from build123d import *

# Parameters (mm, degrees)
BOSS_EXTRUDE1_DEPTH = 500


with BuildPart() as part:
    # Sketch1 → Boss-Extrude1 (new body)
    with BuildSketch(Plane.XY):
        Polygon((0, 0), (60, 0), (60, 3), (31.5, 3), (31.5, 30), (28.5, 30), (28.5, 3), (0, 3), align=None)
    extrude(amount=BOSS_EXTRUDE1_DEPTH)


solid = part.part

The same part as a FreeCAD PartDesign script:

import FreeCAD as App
import Part
import Sketcher
from FreeCAD import Vector
Q = App.Units.Quantity

doc = App.newDocument("Part")
params = doc.addObject("Spreadsheet::Sheet", "Params")
for row, (alias, value) in enumerate([
    ("sketch1_width", "60 mm"),
    ("sketch1_width2", "3 mm"),
    ("sketch1_height", "27 mm"),
    ("pad1_length", "500 mm"),
], start=1):
    params.set(f"A{row}", alias)
    params.set(f"B{row}", "=" + value)
    params.setAlias(f"B{row}", alias)

body = doc.addObject("PartDesign::Body", "Body")

sketch1 = body.newObject("Sketcher::SketchObject", "Sketch")
sketch1.AttachmentSupport = (doc.getObject("XY_Plane"), [""])
sketch1.MapMode = "FlatFace"
sketch1.addGeometry(Part.LineSegment(Vector(0, 0, 0), Vector(60, 0, 0)), False)
sketch1.addGeometry(Part.LineSegment(Vector(60, 0, 0), Vector(60, 3, 0)), False)
sketch1.addGeometry(Part.LineSegment(Vector(60, 3, 0), Vector(31.5, 3, 0)), False)
sketch1.addGeometry(Part.LineSegment(Vector(31.5, 3, 0), Vector(31.5, 30, 0)), False)
sketch1.addGeometry(Part.LineSegment(Vector(31.5, 30, 0), Vector(28.5, 30, 0)), False)
sketch1.addGeometry(Part.LineSegment(Vector(28.5, 30, 0), Vector(28.5, 3, 0)), False)
sketch1.addGeometry(Part.LineSegment(Vector(28.5, 3, 0), Vector(0, 3, 0)), False)
sketch1.addGeometry(Part.LineSegment(Vector(0, 3, 0), Vector(0, 0, 0)), False)
sketch1.addConstraint(Sketcher.Constraint("Coincident", 0, 2, 1, 1))
sketch1.addConstraint(Sketcher.Constraint("Coincident", 1, 2, 2, 1))
sketch1.addConstraint(Sketcher.Constraint("Coincident", 2, 2, 3, 1))
sketch1.addConstraint(Sketcher.Constraint("Coincident", 3, 2, 4, 1))
sketch1.addConstraint(Sketcher.Constraint("Coincident", 4, 2, 5, 1))
sketch1.addConstraint(Sketcher.Constraint("Coincident", 5, 2, 6, 1))
sketch1.addConstraint(Sketcher.Constraint("Coincident", 6, 2, 7, 1))
sketch1.addConstraint(Sketcher.Constraint("Coincident", 7, 2, 0, 1))
sketch1.addConstraint(Sketcher.Constraint("Horizontal", 0))
sketch1.addConstraint(Sketcher.Constraint("Vertical", 1))
sketch1.addConstraint(Sketcher.Constraint("Horizontal", 2))
sketch1.addConstraint(Sketcher.Constraint("Vertical", 3))
sketch1.addConstraint(Sketcher.Constraint("Horizontal", 4))
sketch1.addConstraint(Sketcher.Constraint("Vertical", 5))
sketch1.addConstraint(Sketcher.Constraint("Horizontal", 6))
sketch1.addConstraint(Sketcher.Constraint("Vertical", 7))
sketch1.addConstraint(Sketcher.Constraint("Coincident", 7, 2, -1, 1))
sketch1.addConstraint(Sketcher.Constraint("Horizontal", 2, 2, 5, 2))
sketch1.addConstraint(Sketcher.Constraint("Equal", 2, 6))
sketch1.addConstraint(Sketcher.Constraint("Equal", 4, 1))
sketch1.addConstraint(Sketcher.Constraint("DistanceX", 0, 1, 0, 2, Q("60 mm")))
sketch1.addConstraint(Sketcher.Constraint("DistanceX", 4, 2, 4, 1, Q("3 mm")))
sketch1.addConstraint(Sketcher.Constraint("DistanceY", 3, 1, 3, 2, Q("27 mm")))
sketch1.setExpression("Constraints[20]", "Params.sketch1_width")
sketch1.setExpression("Constraints[21]", "Params.sketch1_width2")
sketch1.setExpression("Constraints[22]", "Params.sketch1_height")
pad1 = body.newObject("PartDesign::Pad", "Pad")
pad1.Profile = sketch1
pad1.setExpression("Length", "Params.pad1_length")

doc.recompute()
